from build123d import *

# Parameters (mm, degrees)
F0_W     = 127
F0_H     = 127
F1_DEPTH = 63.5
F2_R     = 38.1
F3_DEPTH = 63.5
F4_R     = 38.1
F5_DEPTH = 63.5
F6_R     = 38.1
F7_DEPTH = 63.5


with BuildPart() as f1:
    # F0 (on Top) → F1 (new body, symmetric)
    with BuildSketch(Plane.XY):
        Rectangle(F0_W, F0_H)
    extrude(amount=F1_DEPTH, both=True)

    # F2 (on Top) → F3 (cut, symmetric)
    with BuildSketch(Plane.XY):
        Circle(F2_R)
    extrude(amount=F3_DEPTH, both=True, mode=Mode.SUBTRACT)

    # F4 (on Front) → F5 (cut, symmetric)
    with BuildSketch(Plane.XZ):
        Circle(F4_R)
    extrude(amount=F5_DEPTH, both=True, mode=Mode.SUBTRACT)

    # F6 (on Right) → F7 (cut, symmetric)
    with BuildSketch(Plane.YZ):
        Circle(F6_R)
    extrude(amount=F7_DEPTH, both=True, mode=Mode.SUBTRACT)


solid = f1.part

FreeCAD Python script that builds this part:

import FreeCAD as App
import Part
import Sketcher
Q = App.Units.Quantity


def add_polygon(sketch, points):
    """Adds a closed chain of lines whose ends are joined by coincident constraints."""
    first, n = sketch.GeometryCount, len(points)
    for a, b in zip(points, points[1:] + points[:1]):
        sketch.addGeometry(Part.LineSegment(App.Vector(*a, 0), App.Vector(*b, 0)), False)
    for i in range(n):
        sketch.addConstraint(Sketcher.Constraint("Coincident", first + i, 2, first + (i + 1) % n, 1))

doc = App.newDocument("Part")
body = doc.addObject("PartDesign::Body", "Body")

sketch1 = doc.addObject("Sketcher::SketchObject", "Sketch")
body.addObject(sketch1)
sketch1.AttachmentSupport = (doc.XY_Plane, [""])
sketch1.MapMode = "FlatFace"
add_polygon(sketch1, [(-64, 64), (-64, -64), (64, -64), (64, 64)])
sketch1.addConstraint(Sketcher.Constraint("Vertical", 0))
sketch1.addConstraint(Sketcher.Constraint("Horizontal", 1))
sketch1.addConstraint(Sketcher.Constraint("Vertical", 2))
sketch1.addConstraint(Sketcher.Constraint("Horizontal", 3))
sketch1.addConstraint(Sketcher.Constraint("Symmetric", 0, 2, 2, 2, -1, 1))
sketch1.addConstraint(Sketcher.Constraint("Equal", 3, 0))
sketch1.addConstraint(Sketcher.Constraint("DistanceX", 1, 1, 1, 2, Q("5 in")))
pad1 = doc.addObject("PartDesign::Pad", "Pad")
body.addObject(pad1)
pad1.Profile = sketch1
pad1.Length = Q("5 in")
pad1.Midplane = True

sketch2 = doc.addObject("Sketcher::SketchObject", "Sketch001")
body.addObject(sketch2)
sketch2.AttachmentSupport = (doc.XY_Plane, [""])
sketch2.MapMode = "FlatFace"
sketch2.addGeometry(Part.Circle(App.Vector(0, 0, 0), App.Vector(0, 0, 1), 38), False)
sketch2.addConstraint(Sketcher.Constraint("Coincident", 0, 3, -1, 1))
sketch2.addConstraint(Sketcher.Constraint("Diameter", 0, Q("3 in")))
pocket1 = doc.addObject("PartDesign::Pocket", "Pocket")
body.addObject(pocket1)
pocket1.Profile = sketch2
pocket1.Length = Q("5 in")
pocket1.Midplane = True

sketch3 = doc.addObject("Sketcher::SketchObject", "Sketch002")
body.addObject(sketch3)
sketch3.AttachmentSupport = (doc.XZ_Plane, [""])
sketch3.MapMode = "FlatFace"
sketch3.addGeometry(Part.Circle(App.Vector(0, 0, 0), App.Vector(0, 0, 1), 38), False)
sketch3.addConstraint(Sketcher.Constraint("Coincident", 0, 3, -1, 1))
sketch3.addConstraint(Sketcher.Constraint("Diameter", 0, Q("3 in")))
pocket2 = doc.addObject("PartDesign::Pocket", "Pocket001")
body.addObject(pocket2)
pocket2.Profile = sketch3
pocket2.Length = Q("5 in")
pocket2.Midplane = True

sketch4 = doc.addObject("Sketcher::SketchObject", "Sketch003")
body.addObject(sketch4)
sketch4.AttachmentSupport = (doc.YZ_Plane, [""])
sketch4.MapMode = "FlatFace"
sketch4.addGeometry(Part.Circle(App.Vector(0, 0, 0), App.Vector(0, 0, 1), 38), False)
sketch4.addConstraint(Sketcher.Constraint("Coincident", 0, 3, -1, 1))
sketch4.addConstraint(Sketcher.Constraint("Diameter", 0, Q("3 in")))
pocket3 = doc.addObject("PartDesign::Pocket", "Pocket002")
body.addObject(pocket3)
pocket3.Profile = sketch4
pocket3.Length = Q("5 in")
pocket3.Midplane = True

doc.recompute()
